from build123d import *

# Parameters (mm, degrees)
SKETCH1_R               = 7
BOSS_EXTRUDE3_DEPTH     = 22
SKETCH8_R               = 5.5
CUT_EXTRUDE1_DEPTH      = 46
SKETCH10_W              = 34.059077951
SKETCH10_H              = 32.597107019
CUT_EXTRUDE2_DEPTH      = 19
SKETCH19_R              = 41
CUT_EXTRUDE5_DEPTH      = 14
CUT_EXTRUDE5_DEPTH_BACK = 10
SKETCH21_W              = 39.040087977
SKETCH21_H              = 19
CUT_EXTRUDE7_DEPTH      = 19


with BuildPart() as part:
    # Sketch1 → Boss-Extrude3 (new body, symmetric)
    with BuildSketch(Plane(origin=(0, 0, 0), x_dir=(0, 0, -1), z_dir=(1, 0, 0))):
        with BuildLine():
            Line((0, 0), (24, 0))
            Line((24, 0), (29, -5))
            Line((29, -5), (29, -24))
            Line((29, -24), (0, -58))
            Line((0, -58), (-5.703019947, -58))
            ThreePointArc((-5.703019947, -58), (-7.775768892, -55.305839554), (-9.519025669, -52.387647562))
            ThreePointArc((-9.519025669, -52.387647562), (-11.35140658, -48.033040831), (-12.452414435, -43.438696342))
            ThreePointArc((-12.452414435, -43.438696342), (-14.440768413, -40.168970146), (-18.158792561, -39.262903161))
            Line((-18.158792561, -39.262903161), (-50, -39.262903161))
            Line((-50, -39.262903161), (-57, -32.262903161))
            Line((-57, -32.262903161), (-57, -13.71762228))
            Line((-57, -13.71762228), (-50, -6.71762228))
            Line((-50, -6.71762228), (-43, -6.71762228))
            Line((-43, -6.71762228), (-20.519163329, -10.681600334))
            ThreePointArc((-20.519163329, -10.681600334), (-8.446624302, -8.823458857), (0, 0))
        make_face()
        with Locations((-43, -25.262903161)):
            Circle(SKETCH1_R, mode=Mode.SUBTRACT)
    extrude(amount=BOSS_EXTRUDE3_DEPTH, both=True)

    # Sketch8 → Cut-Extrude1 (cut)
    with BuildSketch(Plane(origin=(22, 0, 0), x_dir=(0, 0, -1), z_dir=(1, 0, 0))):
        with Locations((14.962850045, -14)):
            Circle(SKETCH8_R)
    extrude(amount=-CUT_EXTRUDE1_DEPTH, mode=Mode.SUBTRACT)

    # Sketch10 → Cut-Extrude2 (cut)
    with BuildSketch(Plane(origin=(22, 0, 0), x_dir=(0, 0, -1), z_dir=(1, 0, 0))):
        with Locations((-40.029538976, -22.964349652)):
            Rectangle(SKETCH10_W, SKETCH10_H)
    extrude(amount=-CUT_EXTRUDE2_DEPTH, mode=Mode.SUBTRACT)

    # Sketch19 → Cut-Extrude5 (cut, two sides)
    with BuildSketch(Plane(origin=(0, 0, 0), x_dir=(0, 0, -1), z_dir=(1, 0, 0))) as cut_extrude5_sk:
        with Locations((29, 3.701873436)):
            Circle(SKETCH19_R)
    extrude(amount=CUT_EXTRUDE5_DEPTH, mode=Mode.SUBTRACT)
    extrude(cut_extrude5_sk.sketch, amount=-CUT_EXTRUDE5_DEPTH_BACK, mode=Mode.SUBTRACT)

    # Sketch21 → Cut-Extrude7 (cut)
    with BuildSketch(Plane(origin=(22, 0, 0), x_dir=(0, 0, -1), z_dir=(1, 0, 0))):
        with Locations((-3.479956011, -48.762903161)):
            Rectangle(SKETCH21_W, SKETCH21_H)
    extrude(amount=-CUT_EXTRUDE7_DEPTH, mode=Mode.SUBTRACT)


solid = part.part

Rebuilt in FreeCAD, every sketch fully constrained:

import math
import FreeCAD as App
import Part
import Sketcher
Q = App.Units.Quantity

doc = App.newDocument("Part")
params = doc.addObject("Spreadsheet::Sheet", "Params")
for row, (alias, value) in enumerate([
    ("sketch1_diameter", "14 mm"),
    ("sketch1_radius", "19 mm"),
    ("sketch1_radius2", "5 mm"),
    ("sketch1_radius3", "29 mm"),
    ("sketch1_width", "19 mm"),
    ("pad1_length", "44 mm"),
    ("sketch2_diameter", "11 mm"),
    ("pocket1_length", "46 mm"),
    ("pocket2_length", "19 mm"),
    ("sketch4_diameter", "82 mm"),
    ("pocket3_length", "14 mm"),
    ("pocket3_length2", "10 mm"),
    ("sketch5_width", "19 mm"),
    ("pocket4_length", "19 mm"),
], start=1):
    params.set(f"A{row}", alias)
    params.set(f"B{row}", "=" + value)
    params.setAlias(f"B{row}", alias)

body = doc.addObject("PartDesign::Body", "Body")

sketch1 = body.newObject("Sketcher::SketchObject", "Sketch")
sketch1.AttachmentSupport = (doc.getObject("YZ_Plane"), [""])
sketch1.MapMode = "FlatFace"
sketch1.addGeometry(Part.LineSegment(App.Vector(0, -24, 0), App.Vector(0, 0, 0)), False)
sketch1.addGeometry(Part.ArcOfCircle(Part.Circle(App.Vector(8.029747, 17.219848, 0), App.Vector(0, 0, 1), 19), math.radians(170), math.radians(245)), False)
sketch1.addGeometry(Part.LineSegment(App.Vector(-10.6816, 20.519163, 0), App.Vector(-6.717622, 43, 0)), False)
sketch1.addGeometry(Part.LineSegment(App.Vector(-6.717622, 43, 0), App.Vector(-6.717622, 50, 0)), False)
sketch1.addGeometry(Part.LineSegment(App.Vector(-6.717622, 50, 0), App.Vector(-13.717622, 57, 0)), False)
sketch1.addGeometry(Part.LineSegment(App.Vector(-13.717622, 57, 0), App.Vector(-32.262903, 57, 0)), False)
sketch1.addGeometry(Part.LineSegment(App.Vector(-32.262903, 57, 0), App.Vector(-39.262903, 50, 0)), False)
sketch1.addGeometry(Part.LineSegment(App.Vector(-39.262903, 50, 0), App.Vector(-39.262903, 18.158793, 0)), False)
sketch1.addGeometry(Part.ArcOfCircle(Part.Circle(App.Vector(-44.203989, 17.3935, 0), App.Vector(0, 0, 1), 5), math.radians(-81.195787), math.radians(8.804213)), False)
sketch1.addGeometry(Part.ArcOfCircle(Part.Circle(App.Vector(-39, -16.205882, 0), App.Vector(0, 0, 1), 29), math.radians(98.804213), math.radians(117.493179)), False)
sketch1.addGeometry(Part.ArcOfCircle(Part.Circle(App.Vector(-39, -16.205882, 0), App.Vector(0, 0, 1), 29), math.radians(117.493179), math.radians(130.932725)), False)
sketch1.addGeometry(Part.LineSegment(App.Vector(-58, 5.70302, 0), App.Vector(-58, 0, 0)), False)
sketch1.addGeometry(Part.LineSegment(App.Vector(-58, 0, 0), App.Vector(-24, -29, 0)), False)
sketch1.addGeometry(Part.LineSegment(App.Vector(-24, -29, 0), App.Vector(-5, -29, 0)), False)
sketch1.addGeometry(Part.LineSegment(App.Vector(-5, -29, 0), App.Vector(0, -24, 0)), False)
sketch1.addGeometry(Part.Circle(App.Vector(-25.262903, 43, 0), App.Vector(0, 0, 1), 7), False)
sketch1.addConstraint(Sketcher.Constraint("Coincident", 0, 2, 1, 2))
sketch1.addConstraint(Sketcher.Constraint("Tangent", 1, 1, 2, 1))
sketch1.addConstraint(Sketcher.Constraint("Coincident", 2, 2, 3, 1))
sketch1.addConstraint(Sketcher.Constraint("Coincident", 3, 2, 4, 1))
sketch1.addConstraint(Sketcher.Constraint("Coincident", 4, 2, 5, 1))
sketch1.addConstraint(Sketcher.Constraint("Coincident", 5, 2, 6, 1))
sketch1.addConstraint(Sketcher.Constraint("Coincident", 6, 2, 7, 1))
sketch1.addConstraint(Sketcher.Constraint("Coincident", 7, 2, 8, 2))
sketch1.addConstraint(Sketcher.Constraint("Tangent", 8, 1, 9, 1))
sketch1.addConstraint(Sketcher.Constraint("Tangent", 9, 2, 10, 1))
sketch1.addConstraint(Sketcher.Constraint("Coincident", 10, 2, 11, 1))
sketch1.addConstraint(Sketcher.Constraint("Coincident", 11, 2, 12, 1))
sketch1.addConstraint(Sketcher.Constraint("Coincident", 12, 2, 13, 1))
sketch1.addConstraint(Sketcher.Constraint("Coincident", 13, 2, 14, 1))
sketch1.addConstraint(Sketcher.Constraint("Coincident", 14, 2, 0, 1))
sketch1.addConstraint(Sketcher.Constraint("Vertical", 0))
sketch1.addConstraint(Sketcher.Constraint("Vertical", 3))
sketch1.addConstraint(Sketcher.Constraint("Horizontal", 5))
sketch1.addConstraint(Sketcher.Constraint("Vertical", 7))
sketch1.addConstraint(Sketcher.Constraint("Vertical", 11))
sketch1.addConstraint(Sketcher.Constraint("Horizontal", 13))
sketch1.addConstraint(Sketcher.Constraint("Coincident", 0, 2, -1, 1))
sketch1.addConstraint(Sketcher.Constraint("Equal", 9, 10))
sketch1.addConstraint(Sketcher.Constraint("PointOnObject", 11, 2, -1))
sketch1.addConstraint(Sketcher.Constraint("Perpendicular", 4, 6))
sketch1.addConstraint(Sketcher.Constraint("Parallel", 6, 14))
sketch1.addConstraint(Sketcher.Constraint("Horizontal", 15, 3, 2, 2))
sketch1.addConstraint(Sketcher.Constraint("Horizontal", 3, 2, 6, 2))
sketch1.addConstraint(Sketcher.Constraint("Equal", 4, 6))
sketch1.addConstraint(Sketcher.Constraint("Diameter", 15, Q("14 mm")))
sketch1.addConstraint(Sketcher.Constraint("Radius", 1, Q("19 mm")))
sketch1.addConstraint(Sketcher.Constraint("Radius", 8, Q("5 mm")))
sketch1.addConstraint(Sketcher.Constraint("Radius", 9, Q("29 mm")))
sketch1.addConstraint(Sketcher.Constraint("DistanceX", 13, 1, 13, 2, Q("19 mm")))
sketch1.addConstraint(Sketcher.Constraint("DistanceY", 0, 1, 0, 2, Q("24 mm")))
sketch1.addConstraint(Sketcher.Constraint("DistanceY", 3, 1, 3, 2, Q("7 mm")))
sketch1.addConstraint(Sketcher.Constraint("Angle", 2, Q("80 deg")))
sketch1.addConstraint(Sketcher.Constraint("DistanceX", 9, 3, -1, 1, Q("39 mm")))
sketch1.addConstraint(Sketcher.Constraint("DistanceY", -1, 1, 15, 3, Q("43 mm")))
sketch1.addConstraint(Sketcher.Constraint("DistanceY", -1, 1, 4, 2, Q("57 mm")))
sketch1.addConstraint(Sketcher.Constraint("DistanceX", 10, 2, -1, 1, Q("58 mm")))
sketch1.addConstraint(Sketcher.Constraint("DistanceX", 12, 2, -1, 1, Q("24 mm")))
sketch1.addConstraint(Sketcher.Constraint("DistanceX", 5, 2, 15, 3, Q("7 mm")))
sketch1.addConstraint(Sketcher.Constraint("DistanceX", 5, 2, 5, 1, Q("18.545281 mm")))
sketch1.addConstraint(Sketcher.Constraint("DistanceY", 11, 2, 11, 1, Q("5.70302 mm")))
sketch1.addConstraint(Sketcher.Constraint("DistanceY", -1, 1, 8, 3, Q("17.3935 mm")))
sketch1.addConstraint(Sketcher.Constraint("DistanceX", 1, 1, -1, 1, Q("10.6816 mm")))
sketch1.addConstraint(Sketcher.Constraint("DistanceX", 9, 2, 8, 1, Q("8.948951 mm")))
sketch1.setExpression("Constraints[29]", "Params.sketch1_diameter")
sketch1.setExpression("Constraints[30]", "Params.sketch1_radius")
sketch1.setExpression("Constraints[31]", "Params.sketch1_radius2")
sketch1.setExpression("Constraints[32]", "Params.sketch1_radius3")
sketch1.setExpression("Constraints[33]", "Params.sketch1_width")
pad1 = body.newObject("PartDesign::Pad", "Pad")
pad1.Profile = sketch1
pad1.setExpression("Length", "Params.pad1_length")
pad1.Midplane = True

sketch2 = body.newObject("Sketcher::SketchObject", "Sketch001")
sketch2.AttachmentSupport = (doc.getObject("YZ_Plane"), [""])
sketch2.MapMode = "FlatFace"
sketch2.AttachmentOffset = App.Placement(App.Vector(0, 0, 22), App.Rotation())
sketch2.addGeometry(Part.Circle(App.Vector(-14, -14.96285, 0), App.Vector(0, 0, 1), 5.5), False)
sketch2.addConstraint(Sketcher.Constraint("Diameter", 0, Q("11 mm")))
sketch2.addConstraint(Sketcher.Constraint("DistanceX", 0, 3, -1, 1, Q("14 mm")))
sketch2.addConstraint(Sketcher.Constraint("DistanceY", 0, 3, -1, 1, Q("14.96285 mm")))
sketch2.setExpression("Constraints[0]", "Params.sketch2_diameter")
pocket1 = body.newObject("PartDesign::Pocket", "Pocket")
pocket1.Profile = sketch2
pocket1.setExpression("Length", "Params.pocket1_length")

sketch3 = body.newObject("Sketcher::SketchObject", "Sketch002")
sketch3.AttachmentSupport = (doc.getObject("YZ_Plane"), [""])
sketch3.MapMode = "FlatFace"
sketch3.AttachmentOffset = App.Placement(App.Vector(0, 0, 22), App.Rotation())
sketch3.addGeometry(Part.LineSegment(App.Vector(-6.665796, 57.059078, 0), App.Vector(-39.262903, 57.059078, 0)), False)
sketch3.addGeometry(Part.LineSegment(App.Vector(-39.262903, 57.059078, 0), App.Vector(-39.262903, 23, 0)), False)
sketch3.addGeometry(Part.LineSegment(App.Vector(-39.262903, 23, 0), App.Vector(-6.665796, 23, 0)), False)
sketch3.addGeometry(Part.LineSegment(App.Vector(-6.665796, 23, 0), App.Vector(-6.665796, 57.059078, 0)), False)
sketch3.addConstraint(Sketcher.Constraint("Coincident", 0, 2, 1, 1))
sketch3.addConstraint(Sketcher.Constraint("Coincident", 1, 2, 2, 1))
sketch3.addConstraint(Sketcher.Constraint("Coincident", 2, 2, 3, 1))
sketch3.addConstraint(Sketcher.Constraint("Coincident", 3, 2, 0, 1))
sketch3.addConstraint(Sketcher.Constraint("Horizontal", 0))
sketch3.addConstraint(Sketcher.Constraint("Vertical", 1))
sketch3.addConstraint(Sketcher.Constraint("Horizontal", 2))
sketch3.addConstraint(Sketcher.Constraint("Vertical", 3))
sketch3.addConstraint(Sketcher.Constraint("DistanceY", -1, 1, 1, 2, Q("23 mm")))
sketch3.addConstraint(Sketcher.Constraint("DistanceX", 0, 2, 0, 1, Q("32.597107 mm")))
sketch3.addConstraint(Sketcher.Constraint("DistanceY", 1, 2, 1, 1, Q("34.059078 mm")))
sketch3.addConstraint(Sketcher.Constraint("DistanceX", 0, 2, -1, 1, Q("39.262903 mm")))
pocket2 = body.newObject("PartDesign::Pocket", "Pocket001")
pocket2.Profile = sketch3
pocket2.setExpression("Length", "Params.pocket2_length")

sketch4 = body.newObject("Sketcher::SketchObject", "Sketch003")
sketch4.AttachmentSupport = (doc.getObject("YZ_Plane"), [""])
sketch4.MapMode = "FlatFace"
sketch4.addGeometry(Part.Circle(App.Vector(3.701873, -29, 0), App.Vector(0, 0, 1), 41), False)
sketch4.addConstraint(Sketcher.Constraint("Diameter", 0, Q("82 mm")))
sketch4.addConstraint(Sketcher.Constraint("DistanceY", 0, 3, -1, 1, Q("29 mm")))
sketch4.addConstraint(Sketcher.Constraint("DistanceX", -1, 1, 0, 3, Q("3.701873 mm")))
sketch4.setExpression("Constraints[0]", "Params.sketch4_diameter")
pocket3 = body.newObject("PartDesign::Pocket", "Pocket002")
pocket3.Profile = sketch4
pocket3.Type = "TwoLengths"
pocket3.setExpression("Length", "Params.pocket3_length")
pocket3.setExpression("Length2", "Params.pocket3_length2")
pocket3.Reversed = True

sketch5 = body.newObject("Sketcher::SketchObject", "Sketch004")
sketch5.AttachmentSupport = (doc.getObject("YZ_Plane"), [""])
sketch5.MapMode = "FlatFace"
sketch5.AttachmentOffset = App.Placement(App.Vector(0, 0, 22), App.Rotation())
sketch5.addGeometry(Part.LineSegment(App.Vector(-39.262903, 23, 0), App.Vector(-58.262903, 23, 0)), False)
sketch5.addGeometry(Part.LineSegment(App.Vector(-58.262903, 23, 0), App.Vector(-58.262903, -16.040088, 0)), False)
sketch5.addGeometry(Part.LineSegment(App.Vector(-58.262903, -16.040088, 0), App.Vector(-39.262903, -16.040088, 0)), False)
sketch5.addGeometry(Part.LineSegment(App.Vector(-39.262903, -16.040088, 0), App.Vector(-39.262903, 23, 0)), False)
sketch5.addConstraint(Sketcher.Constraint("Coincident", 0, 2, 1, 1))
sketch5.addConstraint(Sketcher.Constraint("Coincident", 1, 2, 2, 1))
sketch5.addConstraint(Sketcher.Constraint("Coincident", 2, 2, 3, 1))
sketch5.addConstraint(Sketcher.Constraint("Coincident", 3, 2, 0, 1))
sketch5.addConstraint(Sketcher.Constraint("Horizontal", 0))
sketch5.addConstraint(Sketcher.Constraint("Vertical", 1))
sketch5.addConstraint(Sketcher.Constraint("Horizontal", 2))
sketch5.addConstraint(Sketcher.Constraint("Vertical", 3))
sketch5.addConstraint(Sketcher.Constraint("DistanceX", 0, 2, 0, 1, Q("19 mm")))
sketch5.addConstraint(Sketcher.Constraint("DistanceY", -1, 1, 0, 2, Q("23 mm")))
sketch5.addConstraint(Sketcher.Constraint("DistanceY", 1, 2, 1, 1, Q("39.040088 mm")))
sketch5.addConstraint(Sketcher.Constraint("DistanceX", 0, 2, -1, 1, Q("58.262903 mm")))
sketch5.setExpression("Constraints[8]", "Params.sketch5_width")
pocket4 = body.newObject("PartDesign::Pocket", "Pocket003")
pocket4.Profile = sketch5
pocket4.setExpression("Length", "Params.pocket4_length")

doc.recompute()
